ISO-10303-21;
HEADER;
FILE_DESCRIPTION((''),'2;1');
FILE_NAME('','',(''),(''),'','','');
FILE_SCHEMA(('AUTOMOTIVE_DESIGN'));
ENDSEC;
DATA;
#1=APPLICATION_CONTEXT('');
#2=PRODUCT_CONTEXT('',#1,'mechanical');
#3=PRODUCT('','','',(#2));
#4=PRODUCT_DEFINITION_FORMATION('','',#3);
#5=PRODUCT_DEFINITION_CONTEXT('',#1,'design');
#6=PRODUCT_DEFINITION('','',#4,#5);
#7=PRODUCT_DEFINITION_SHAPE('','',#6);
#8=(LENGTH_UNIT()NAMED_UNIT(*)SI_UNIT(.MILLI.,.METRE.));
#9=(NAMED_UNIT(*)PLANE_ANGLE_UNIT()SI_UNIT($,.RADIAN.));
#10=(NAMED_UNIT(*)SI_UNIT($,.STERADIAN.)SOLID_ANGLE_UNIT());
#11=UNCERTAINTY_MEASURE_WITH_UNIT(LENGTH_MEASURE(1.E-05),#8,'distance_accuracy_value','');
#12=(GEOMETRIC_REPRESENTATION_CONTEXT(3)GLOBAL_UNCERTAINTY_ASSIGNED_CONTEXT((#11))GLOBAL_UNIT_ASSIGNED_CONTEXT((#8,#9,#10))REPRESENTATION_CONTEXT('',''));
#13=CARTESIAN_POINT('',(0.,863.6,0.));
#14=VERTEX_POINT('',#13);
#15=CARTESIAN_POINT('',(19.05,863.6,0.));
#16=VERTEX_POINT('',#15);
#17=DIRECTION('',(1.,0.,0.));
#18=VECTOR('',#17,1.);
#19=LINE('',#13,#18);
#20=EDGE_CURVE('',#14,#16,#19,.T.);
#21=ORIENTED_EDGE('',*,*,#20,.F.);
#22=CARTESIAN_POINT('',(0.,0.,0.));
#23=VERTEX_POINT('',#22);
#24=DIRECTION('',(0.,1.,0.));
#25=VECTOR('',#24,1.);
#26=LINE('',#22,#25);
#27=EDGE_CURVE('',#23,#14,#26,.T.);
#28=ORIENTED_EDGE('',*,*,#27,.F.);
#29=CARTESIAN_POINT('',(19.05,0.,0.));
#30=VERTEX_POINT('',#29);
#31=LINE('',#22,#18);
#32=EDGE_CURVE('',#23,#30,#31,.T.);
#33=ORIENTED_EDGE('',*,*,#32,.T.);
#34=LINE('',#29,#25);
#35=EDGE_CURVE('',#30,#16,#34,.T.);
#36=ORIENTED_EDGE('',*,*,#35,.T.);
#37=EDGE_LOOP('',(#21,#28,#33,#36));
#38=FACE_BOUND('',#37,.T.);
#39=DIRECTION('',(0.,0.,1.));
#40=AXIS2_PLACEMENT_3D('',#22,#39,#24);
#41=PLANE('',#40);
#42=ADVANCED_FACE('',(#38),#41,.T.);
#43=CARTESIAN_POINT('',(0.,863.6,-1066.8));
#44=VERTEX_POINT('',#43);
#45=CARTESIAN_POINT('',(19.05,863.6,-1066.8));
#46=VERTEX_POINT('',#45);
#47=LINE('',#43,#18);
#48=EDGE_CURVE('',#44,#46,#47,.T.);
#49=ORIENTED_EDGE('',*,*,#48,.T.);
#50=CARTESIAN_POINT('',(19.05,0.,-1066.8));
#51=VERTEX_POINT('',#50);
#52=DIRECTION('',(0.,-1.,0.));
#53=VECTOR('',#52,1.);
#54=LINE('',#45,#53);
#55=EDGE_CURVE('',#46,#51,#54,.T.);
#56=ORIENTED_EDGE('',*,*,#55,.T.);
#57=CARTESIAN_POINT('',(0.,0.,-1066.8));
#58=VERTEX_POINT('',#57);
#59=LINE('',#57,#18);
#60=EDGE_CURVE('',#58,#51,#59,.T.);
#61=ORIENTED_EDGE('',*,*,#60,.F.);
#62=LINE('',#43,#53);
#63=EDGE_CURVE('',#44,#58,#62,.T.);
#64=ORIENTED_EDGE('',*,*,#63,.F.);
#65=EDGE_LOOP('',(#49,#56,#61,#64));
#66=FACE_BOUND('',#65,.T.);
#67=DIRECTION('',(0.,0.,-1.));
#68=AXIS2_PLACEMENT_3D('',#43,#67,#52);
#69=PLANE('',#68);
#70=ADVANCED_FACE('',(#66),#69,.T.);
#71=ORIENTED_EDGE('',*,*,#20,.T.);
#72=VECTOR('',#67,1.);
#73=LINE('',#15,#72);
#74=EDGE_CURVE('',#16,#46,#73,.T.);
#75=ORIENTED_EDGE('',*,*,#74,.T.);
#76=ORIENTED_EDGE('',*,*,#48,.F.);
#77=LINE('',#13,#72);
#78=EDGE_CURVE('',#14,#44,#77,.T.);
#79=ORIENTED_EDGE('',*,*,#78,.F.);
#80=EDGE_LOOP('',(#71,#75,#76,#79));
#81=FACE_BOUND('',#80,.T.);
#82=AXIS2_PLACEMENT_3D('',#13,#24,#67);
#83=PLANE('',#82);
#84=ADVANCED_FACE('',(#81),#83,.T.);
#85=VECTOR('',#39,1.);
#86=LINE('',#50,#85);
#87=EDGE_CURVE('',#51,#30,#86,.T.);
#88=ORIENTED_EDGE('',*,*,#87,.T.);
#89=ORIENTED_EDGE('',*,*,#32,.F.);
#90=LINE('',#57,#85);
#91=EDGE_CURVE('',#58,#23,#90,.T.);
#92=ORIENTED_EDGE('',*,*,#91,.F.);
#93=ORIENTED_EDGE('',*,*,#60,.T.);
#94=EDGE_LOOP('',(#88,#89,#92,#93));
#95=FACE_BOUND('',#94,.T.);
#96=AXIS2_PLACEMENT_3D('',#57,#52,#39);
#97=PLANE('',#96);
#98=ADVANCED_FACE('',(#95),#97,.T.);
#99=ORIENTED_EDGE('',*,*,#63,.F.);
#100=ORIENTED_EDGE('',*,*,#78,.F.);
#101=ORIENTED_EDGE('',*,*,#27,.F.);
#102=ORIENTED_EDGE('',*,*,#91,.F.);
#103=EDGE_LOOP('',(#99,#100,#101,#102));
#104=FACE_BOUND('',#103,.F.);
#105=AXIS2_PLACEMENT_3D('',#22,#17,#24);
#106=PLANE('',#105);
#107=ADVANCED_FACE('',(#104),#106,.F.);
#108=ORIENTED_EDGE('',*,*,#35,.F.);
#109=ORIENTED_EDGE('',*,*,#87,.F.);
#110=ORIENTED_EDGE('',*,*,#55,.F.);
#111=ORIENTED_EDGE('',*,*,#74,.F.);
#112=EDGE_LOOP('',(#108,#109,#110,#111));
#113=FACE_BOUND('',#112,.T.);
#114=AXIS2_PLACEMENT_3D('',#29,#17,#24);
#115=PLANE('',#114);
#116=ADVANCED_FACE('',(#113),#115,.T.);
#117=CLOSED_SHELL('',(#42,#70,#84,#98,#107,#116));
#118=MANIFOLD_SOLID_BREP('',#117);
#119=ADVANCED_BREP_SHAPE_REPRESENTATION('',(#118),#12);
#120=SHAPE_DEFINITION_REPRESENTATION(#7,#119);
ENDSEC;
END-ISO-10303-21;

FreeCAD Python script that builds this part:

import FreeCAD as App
import Part
import Sketcher

V = App.Vector
Q = App.Units.Quantity


def add_polygon(sketch, points):
    """Adds a closed chain of lines whose ends are joined by coincident constraints."""
    first, n = sketch.GeometryCount, len(points)
    for a, b in zip(points, points[1:] + points[:1]):
        sketch.addGeometry(Part.LineSegment(App.Vector(*a, 0), App.Vector(*b, 0)), False)
    for i in range(n):
        sketch.addConstraint(Sketcher.Constraint("Coincident", first + i, 2, first + (i + 1) % n, 1))

doc = App.newDocument("Part")
body = doc.addObject("PartDesign::Body", "Body")

# Sketch on YZ plane
sketch1 = doc.addObject("Sketcher::SketchObject", "Sketch")
body.addObject(sketch1)
sketch1.AttachmentSupport = (doc.YZ_Plane, [""])
sketch1.MapMode = "FlatFace"
add_polygon(sketch1, [(864, 0), (0, 0), (0, -1067), (864, -1067)])  # lines 0-3
sketch1.addConstraint([
    Sketcher.Constraint("Horizontal", 0),
    Sketcher.Constraint("Vertical", 1),
    Sketcher.Constraint("Horizontal", 2),
    Sketcher.Constraint("Vertical", 3),
    Sketcher.Constraint("Coincident", 0, 2, -1, 1),
    Sketcher.Constraint("DistanceX", 0, 2, 0, 1, Q("34 in")),
    Sketcher.Constraint("DistanceY", 1, 2, 1, 1, Q("42 in")),
])
pad1 = doc.addObject("PartDesign::Pad", "Pad")
body.addObject(pad1)
pad1.Profile = sketch1
pad1.Length = Q("0.75 in")

doc.recompute()
